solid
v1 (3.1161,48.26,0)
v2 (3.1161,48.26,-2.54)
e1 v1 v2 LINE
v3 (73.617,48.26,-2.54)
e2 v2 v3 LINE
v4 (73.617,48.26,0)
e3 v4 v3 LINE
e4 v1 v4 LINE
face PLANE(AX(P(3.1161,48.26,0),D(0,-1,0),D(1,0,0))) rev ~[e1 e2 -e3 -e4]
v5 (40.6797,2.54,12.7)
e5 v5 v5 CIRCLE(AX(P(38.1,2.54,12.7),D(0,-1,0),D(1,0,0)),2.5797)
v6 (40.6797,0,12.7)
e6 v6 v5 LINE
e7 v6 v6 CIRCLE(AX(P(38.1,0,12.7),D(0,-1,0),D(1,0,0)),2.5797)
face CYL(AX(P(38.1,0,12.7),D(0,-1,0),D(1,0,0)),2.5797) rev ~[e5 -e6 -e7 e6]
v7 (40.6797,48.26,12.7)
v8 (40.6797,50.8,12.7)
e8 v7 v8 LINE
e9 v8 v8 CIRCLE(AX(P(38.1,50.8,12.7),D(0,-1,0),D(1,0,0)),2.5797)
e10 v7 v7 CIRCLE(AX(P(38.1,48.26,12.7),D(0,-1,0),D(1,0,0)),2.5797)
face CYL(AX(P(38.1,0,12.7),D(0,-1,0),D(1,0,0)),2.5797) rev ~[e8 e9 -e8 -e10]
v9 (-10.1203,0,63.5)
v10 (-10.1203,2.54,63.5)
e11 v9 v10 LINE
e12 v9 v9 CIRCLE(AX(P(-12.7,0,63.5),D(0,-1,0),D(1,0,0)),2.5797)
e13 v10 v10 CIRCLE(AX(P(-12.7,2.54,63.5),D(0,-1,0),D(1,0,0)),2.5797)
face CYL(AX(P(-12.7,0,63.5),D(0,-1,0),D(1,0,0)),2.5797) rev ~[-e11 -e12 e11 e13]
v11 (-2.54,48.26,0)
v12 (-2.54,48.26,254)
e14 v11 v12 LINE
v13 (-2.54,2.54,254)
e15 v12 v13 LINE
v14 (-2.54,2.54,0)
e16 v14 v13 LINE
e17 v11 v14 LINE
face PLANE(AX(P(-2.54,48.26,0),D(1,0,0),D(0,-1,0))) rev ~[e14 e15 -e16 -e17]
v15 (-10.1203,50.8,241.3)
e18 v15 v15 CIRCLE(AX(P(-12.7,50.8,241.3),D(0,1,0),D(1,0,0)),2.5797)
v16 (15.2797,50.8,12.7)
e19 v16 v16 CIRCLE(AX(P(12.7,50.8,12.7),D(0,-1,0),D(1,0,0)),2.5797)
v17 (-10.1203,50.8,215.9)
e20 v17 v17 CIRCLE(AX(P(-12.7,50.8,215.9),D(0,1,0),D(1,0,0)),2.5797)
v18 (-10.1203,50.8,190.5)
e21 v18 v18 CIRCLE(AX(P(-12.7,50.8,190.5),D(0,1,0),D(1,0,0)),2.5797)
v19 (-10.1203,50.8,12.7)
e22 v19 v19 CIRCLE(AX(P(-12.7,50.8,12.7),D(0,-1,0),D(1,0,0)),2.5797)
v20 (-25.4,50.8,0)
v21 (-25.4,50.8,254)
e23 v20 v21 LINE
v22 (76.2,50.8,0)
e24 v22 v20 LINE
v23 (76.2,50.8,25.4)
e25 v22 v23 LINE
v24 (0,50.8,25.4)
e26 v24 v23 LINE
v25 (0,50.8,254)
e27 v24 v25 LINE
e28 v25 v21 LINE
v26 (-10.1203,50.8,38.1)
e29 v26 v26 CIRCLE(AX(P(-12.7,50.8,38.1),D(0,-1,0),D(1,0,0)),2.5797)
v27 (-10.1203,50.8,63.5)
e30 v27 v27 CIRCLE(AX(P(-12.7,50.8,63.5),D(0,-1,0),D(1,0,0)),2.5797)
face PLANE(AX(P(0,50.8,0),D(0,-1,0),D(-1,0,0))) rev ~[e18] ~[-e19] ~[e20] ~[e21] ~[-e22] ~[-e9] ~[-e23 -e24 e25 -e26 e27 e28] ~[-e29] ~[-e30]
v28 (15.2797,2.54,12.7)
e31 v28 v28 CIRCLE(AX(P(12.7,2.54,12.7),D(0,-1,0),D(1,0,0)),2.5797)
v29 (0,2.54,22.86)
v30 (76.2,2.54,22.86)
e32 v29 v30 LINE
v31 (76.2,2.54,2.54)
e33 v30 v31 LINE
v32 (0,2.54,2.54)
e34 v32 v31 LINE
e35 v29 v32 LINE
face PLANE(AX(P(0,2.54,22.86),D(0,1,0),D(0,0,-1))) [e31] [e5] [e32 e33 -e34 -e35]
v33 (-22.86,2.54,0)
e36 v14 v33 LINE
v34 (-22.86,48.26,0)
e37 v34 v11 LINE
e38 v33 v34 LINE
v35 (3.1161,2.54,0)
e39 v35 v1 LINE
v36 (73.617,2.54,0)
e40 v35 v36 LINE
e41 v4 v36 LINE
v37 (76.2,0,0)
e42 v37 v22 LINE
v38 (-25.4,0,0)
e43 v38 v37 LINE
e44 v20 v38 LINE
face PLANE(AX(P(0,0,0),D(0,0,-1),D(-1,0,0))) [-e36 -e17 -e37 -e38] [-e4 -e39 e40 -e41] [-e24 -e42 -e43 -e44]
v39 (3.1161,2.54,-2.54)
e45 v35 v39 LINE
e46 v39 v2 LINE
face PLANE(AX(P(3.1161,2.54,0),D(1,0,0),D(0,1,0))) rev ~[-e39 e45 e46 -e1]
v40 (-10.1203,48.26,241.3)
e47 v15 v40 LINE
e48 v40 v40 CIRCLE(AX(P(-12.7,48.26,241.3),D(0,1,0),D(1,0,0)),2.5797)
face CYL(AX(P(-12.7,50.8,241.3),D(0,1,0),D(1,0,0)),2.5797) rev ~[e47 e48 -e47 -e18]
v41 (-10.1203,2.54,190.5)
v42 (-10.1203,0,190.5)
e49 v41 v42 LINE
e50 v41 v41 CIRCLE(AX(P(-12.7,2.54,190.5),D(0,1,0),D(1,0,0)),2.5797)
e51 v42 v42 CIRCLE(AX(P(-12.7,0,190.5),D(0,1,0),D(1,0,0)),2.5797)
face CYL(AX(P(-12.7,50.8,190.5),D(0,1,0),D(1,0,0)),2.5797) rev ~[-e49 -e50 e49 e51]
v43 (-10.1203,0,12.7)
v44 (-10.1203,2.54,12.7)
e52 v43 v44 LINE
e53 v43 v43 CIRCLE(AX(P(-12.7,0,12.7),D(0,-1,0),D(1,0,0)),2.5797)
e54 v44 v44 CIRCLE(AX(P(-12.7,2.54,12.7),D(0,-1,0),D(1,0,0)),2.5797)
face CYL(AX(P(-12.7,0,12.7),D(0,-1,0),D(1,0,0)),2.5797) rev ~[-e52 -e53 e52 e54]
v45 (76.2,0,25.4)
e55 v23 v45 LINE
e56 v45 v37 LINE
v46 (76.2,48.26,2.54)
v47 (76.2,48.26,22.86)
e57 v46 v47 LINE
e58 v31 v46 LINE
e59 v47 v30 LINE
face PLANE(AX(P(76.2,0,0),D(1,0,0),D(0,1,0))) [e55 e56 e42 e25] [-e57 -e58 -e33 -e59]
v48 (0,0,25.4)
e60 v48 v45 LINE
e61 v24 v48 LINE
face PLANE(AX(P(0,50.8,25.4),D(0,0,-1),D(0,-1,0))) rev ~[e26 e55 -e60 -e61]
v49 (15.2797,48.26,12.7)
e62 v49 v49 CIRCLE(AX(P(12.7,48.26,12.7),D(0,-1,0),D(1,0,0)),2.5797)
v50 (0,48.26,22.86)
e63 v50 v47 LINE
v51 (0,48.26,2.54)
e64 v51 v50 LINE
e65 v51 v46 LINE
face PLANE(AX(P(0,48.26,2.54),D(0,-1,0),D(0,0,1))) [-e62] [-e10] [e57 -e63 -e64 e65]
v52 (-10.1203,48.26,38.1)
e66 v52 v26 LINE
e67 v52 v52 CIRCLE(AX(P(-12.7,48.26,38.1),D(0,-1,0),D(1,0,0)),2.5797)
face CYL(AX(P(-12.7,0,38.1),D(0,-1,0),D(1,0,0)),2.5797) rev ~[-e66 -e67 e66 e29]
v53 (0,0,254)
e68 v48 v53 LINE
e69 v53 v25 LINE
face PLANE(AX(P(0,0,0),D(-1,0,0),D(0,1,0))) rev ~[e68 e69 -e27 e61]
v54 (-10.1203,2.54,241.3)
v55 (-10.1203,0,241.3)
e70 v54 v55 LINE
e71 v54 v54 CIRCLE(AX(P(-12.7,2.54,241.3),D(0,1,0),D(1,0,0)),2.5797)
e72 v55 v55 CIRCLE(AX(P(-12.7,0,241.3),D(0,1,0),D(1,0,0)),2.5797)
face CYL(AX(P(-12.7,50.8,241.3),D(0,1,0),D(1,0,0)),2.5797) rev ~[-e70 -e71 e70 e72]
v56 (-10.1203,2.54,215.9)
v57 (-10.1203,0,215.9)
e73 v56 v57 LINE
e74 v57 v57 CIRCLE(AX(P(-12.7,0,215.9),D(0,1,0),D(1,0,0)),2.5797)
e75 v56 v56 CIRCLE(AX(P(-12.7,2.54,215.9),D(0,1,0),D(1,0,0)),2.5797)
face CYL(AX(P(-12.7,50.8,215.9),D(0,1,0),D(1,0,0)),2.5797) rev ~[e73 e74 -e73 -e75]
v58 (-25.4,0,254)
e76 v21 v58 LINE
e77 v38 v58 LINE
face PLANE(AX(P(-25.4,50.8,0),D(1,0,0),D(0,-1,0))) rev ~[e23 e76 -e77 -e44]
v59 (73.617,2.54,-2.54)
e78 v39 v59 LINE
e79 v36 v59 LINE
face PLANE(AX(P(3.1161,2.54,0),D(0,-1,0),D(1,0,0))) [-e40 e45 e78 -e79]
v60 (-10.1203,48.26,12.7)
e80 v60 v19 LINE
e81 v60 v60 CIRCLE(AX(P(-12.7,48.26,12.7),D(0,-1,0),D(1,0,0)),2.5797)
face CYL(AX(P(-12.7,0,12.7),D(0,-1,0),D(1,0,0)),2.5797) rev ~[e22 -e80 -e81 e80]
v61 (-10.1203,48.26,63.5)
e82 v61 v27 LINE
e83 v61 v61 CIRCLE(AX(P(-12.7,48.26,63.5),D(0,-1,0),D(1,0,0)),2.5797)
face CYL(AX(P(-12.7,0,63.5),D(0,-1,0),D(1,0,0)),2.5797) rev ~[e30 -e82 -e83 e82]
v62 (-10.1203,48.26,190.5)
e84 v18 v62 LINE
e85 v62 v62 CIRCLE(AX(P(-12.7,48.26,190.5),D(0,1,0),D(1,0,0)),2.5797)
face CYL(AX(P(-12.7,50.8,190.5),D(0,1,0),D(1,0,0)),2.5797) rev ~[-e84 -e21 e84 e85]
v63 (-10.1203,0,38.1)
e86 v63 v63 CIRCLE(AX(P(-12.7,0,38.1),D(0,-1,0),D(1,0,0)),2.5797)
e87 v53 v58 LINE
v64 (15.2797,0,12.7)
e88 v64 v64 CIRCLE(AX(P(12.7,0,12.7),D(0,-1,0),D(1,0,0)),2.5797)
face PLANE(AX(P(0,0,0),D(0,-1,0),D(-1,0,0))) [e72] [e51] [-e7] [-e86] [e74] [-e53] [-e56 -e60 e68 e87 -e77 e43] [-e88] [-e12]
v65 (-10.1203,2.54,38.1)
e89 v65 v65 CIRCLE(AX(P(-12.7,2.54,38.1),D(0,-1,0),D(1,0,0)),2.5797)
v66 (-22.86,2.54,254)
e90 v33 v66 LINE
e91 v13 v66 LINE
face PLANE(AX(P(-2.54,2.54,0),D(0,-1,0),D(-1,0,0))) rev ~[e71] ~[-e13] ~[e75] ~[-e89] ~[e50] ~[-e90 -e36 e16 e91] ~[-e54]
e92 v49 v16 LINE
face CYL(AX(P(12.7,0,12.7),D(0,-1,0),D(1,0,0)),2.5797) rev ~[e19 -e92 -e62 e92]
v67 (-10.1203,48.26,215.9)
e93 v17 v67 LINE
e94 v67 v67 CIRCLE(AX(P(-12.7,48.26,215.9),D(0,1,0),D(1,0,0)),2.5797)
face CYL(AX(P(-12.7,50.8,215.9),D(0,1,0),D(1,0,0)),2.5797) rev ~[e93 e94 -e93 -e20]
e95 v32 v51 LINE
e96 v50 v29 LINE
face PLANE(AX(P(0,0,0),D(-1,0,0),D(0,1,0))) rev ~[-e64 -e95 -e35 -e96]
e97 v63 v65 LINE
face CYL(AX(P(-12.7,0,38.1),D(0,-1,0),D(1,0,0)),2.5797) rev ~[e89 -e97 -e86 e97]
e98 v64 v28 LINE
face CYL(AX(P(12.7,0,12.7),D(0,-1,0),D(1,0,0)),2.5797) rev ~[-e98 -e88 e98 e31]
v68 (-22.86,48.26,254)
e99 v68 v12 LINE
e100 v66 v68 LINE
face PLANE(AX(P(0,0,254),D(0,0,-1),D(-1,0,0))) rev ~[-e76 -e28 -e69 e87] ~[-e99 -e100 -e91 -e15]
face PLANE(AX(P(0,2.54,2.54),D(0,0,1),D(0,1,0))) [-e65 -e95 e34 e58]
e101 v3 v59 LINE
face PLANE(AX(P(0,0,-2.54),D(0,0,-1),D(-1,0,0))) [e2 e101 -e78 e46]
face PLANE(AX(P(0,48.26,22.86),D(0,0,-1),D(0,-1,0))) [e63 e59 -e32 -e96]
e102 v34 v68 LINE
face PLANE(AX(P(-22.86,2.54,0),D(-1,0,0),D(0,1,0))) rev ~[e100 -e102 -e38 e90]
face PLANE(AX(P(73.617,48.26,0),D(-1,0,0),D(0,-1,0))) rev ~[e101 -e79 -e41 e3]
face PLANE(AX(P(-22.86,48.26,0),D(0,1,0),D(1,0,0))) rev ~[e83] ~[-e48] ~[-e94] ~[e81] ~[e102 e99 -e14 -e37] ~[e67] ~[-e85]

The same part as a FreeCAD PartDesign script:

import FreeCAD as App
import Part
import Sketcher

V = App.Vector
Q = App.Units.Quantity


def add_polygon(sketch, points):
    """Adds a closed chain of lines whose ends are joined by coincident constraints."""
    first, n = sketch.GeometryCount, len(points)
    for a, b in zip(points, points[1:] + points[:1]):
        sketch.addGeometry(Part.LineSegment(App.Vector(*a, 0), App.Vector(*b, 0)), False)
    for i in range(n):
        sketch.addConstraint(Sketcher.Constraint("Coincident", first + i, 2, first + (i + 1) % n, 1))

doc = App.newDocument("Part")
body = doc.addObject("PartDesign::Body", "Body")

# Sketch on YZ plane
sketch1 = body.newObject("Sketcher::SketchObject", "Sketch")
sketch1.AttachmentSupport = (doc.getObject("YZ_Plane"), [""])
sketch1.MapMode = "FlatFace"
add_polygon(sketch1, [(0, 25.4), (0, 0), (50.8, 0), (50.8, 25.4)])  # lines 0-3
add_polygon(sketch1, [(2.54, 22.86), (48.26, 22.86), (48.26, 2.54), (2.54, 2.54)])  # lines 4-7
sketch1.addConstraint([
    Sketcher.Constraint("Vertical", 0),
    Sketcher.Constraint("Horizontal", 1),
    Sketcher.Constraint("Vertical", 2),
    Sketcher.Constraint("Horizontal", 3),
    Sketcher.Constraint("Horizontal", 4),
    Sketcher.Constraint("Vertical", 5),
    Sketcher.Constraint("Horizontal", 6),
    Sketcher.Constraint("Vertical", 7),
    Sketcher.Constraint("Coincident", 0, 2, -1, 1),
    Sketcher.Constraint("DistanceX", 1, 1, 1, 2, Q("2 in")),
    Sketcher.Constraint("DistanceY", 0, 2, 0, 1, Q("1 in")),
    Sketcher.Constraint("DistanceY", -1, 1, 5, 2, Q("0.1 in")),
    Sketcher.Constraint("DistanceX", -1, 1, 6, 2, Q("0.1 in")),
    Sketcher.Constraint("DistanceX", 4, 2, 2, 2, Q("0.1 in")),
    Sketcher.Constraint("DistanceY", 4, 2, 2, 2, Q("0.1 in")),
])
pad1 = body.newObject("PartDesign::Pad", "Pad")
pad1.Profile = sketch1
pad1.Length = Q("3 in")

# Sketch on XY plane
sketch2 = body.newObject("Sketcher::SketchObject", "Sketch001")
sketch2.AttachmentSupport = (doc.getObject("XY_Plane"), [""])
sketch2.MapMode = "FlatFace"
add_polygon(sketch2, [(73.617, 2.54), (3.1161, 2.54), (3.1161, 48.26), (73.617, 48.26)])  # lines 0-3
sketch2.addConstraint([
    Sketcher.Constraint("Horizontal", 0),
    Sketcher.Constraint("Vertical", 1),
    Sketcher.Constraint("Horizontal", 2),
    Sketcher.Constraint("Vertical", 3),
    Sketcher.Constraint("DistanceY", 1, 1, 1, 2, Q("1.8 in")),
    Sketcher.Constraint("DistanceY", -1, 1, 0, 2, Q("0.1 in")),
    Sketcher.Constraint("DistanceX", 0, 2, 0, 1, 70.501),
    Sketcher.Constraint("DistanceX", -1, 1, 2, 2, Q("2.8983 in")),
])
pad2 = body.newObject("PartDesign::Pad", "Pad001")
pad2.Profile = sketch2
pad2.Length = Q("0.1 in")
pad2.Reversed = True

# Sketch on XY plane
sketch3 = body.newObject("Sketcher::SketchObject", "Sketch002")
sketch3.AttachmentSupport = (doc.getObject("XY_Plane"), [""])
sketch3.MapMode = "FlatFace"
add_polygon(sketch3, [(0, 50.8), (0, 0), (-25.4, 0), (-25.4, 50.8)])  # lines 0-3
add_polygon(sketch3, [(-2.54, 48.26), (-22.86, 48.26), (-22.86, 2.54), (-2.54, 2.54)])  # lines 4-7
sketch3.addConstraint([
    Sketcher.Constraint("Vertical", 0),
    Sketcher.Constraint("Horizontal", 1),
    Sketcher.Constraint("Vertical", 2),
    Sketcher.Constraint("Horizontal", 3),
    Sketcher.Constraint("Horizontal", 4),
    Sketcher.Constraint("Vertical", 5),
    Sketcher.Constraint("Horizontal", 6),
    Sketcher.Constraint("Vertical", 7),
    Sketcher.Constraint("Coincident", 0, 2, -1, 1),
    Sketcher.Constraint("DistanceX", 1, 2, 1, 1, Q("1 in")),
    Sketcher.Constraint("DistanceY", 0, 2, 0, 1, Q("2 in")),
    Sketcher.Constraint("DistanceY", -1, 1, 5, 2, Q("0.1 in")),
    Sketcher.Constraint("DistanceX", 6, 2, -1, 1, Q("0.1 in")),
    Sketcher.Constraint("DistanceX", 2, 2, 4, 2, Q("0.1 in")),
    Sketcher.Constraint("DistanceY", 4, 2, 2, 2, Q("0.1 in")),
])
pad3 = body.newObject("PartDesign::Pad", "Pad002")
pad3.Profile = sketch3
pad3.Length = Q("10 in")

# Sketch on XZ plane
sketch4 = body.newObject("Sketcher::SketchObject", "Sketch003")
sketch4.AttachmentSupport = (doc.getObject("XZ_Plane"), [""])
sketch4.MapMode = "FlatFace"
sketch4.addGeometry([
    Part.Circle(V(38.1, 12.7, 0), V(0, 0, 1), 2.5797),  # 0
    Part.Circle(V(12.7, 12.7, 0), V(0, 0, 1), 2.5797),  # 1
    Part.Circle(V(-12.7, 12.7, 0), V(0, 0, 1), 2.5797),  # 2
    Part.Circle(V(-12.7, 38.1, 0), V(0, 0, 1), 2.5797),  # 3
    Part.Circle(V(-12.7, 63.5, 0), V(0, 0, 1), 2.5797),  # 4
], False)
sketch4.addConstraint([
    Sketcher.Constraint("Equal", 0, 1),
    Sketcher.Constraint("Equal", 1, 2),
    Sketcher.Constraint("Equal", 2, 3),
    Sketcher.Constraint("Equal", 3, 4),
    Sketcher.Constraint("Symmetric", 1, 3, 2, 3, -2),
    Sketcher.Constraint("Horizontal", 0, 3, 1, 3),
    Sketcher.Constraint("Vertical", 2, 3, 3, 3),
    Sketcher.Constraint("Vertical", 3, 3, 4, 3),
    Sketcher.Constraint("Diameter", 0, Q("0.203126 in")),
    Sketcher.Constraint("DistanceX", 1, 3, 0, 3, Q("1 in")),
    Sketcher.Constraint("DistanceX", 2, 3, 1, 3, Q("1 in")),
    Sketcher.Constraint("DistanceY", 2, 3, 3, 3, Q("1 in")),
    Sketcher.Constraint("DistanceY", 3, 3, 4, 3, Q("1 in")),
    Sketcher.Constraint("DistanceY", -1, 1, 0, 3, Q("0.5 in")),
])
pocket1 = body.newObject("PartDesign::Pocket", "Pocket")
pocket1.Profile = sketch4
pocket1.Length = Q("3 in")

# Sketch on XZ plane
sketch5 = body.newObject("Sketcher::SketchObject", "Sketch004")
sketch5.AttachmentSupport = (doc.getObject("XZ_Plane"), [""])
sketch5.MapMode = "FlatFace"
sketch5.AttachmentOffset = App.Placement(V(0, 0, -2 * 25.4), App.Rotation())
sketch5.addGeometry([
    Part.Circle(V(-12.7, 241.3, 0), V(0, 0, 1), 2.5797),
    Part.Circle(V(-12.7, 215.9, 0), V(0, 0, 1), 2.5797),
    Part.Circle(V(-12.7, 190.5, 0), V(0, 0, 1), 2.5797),
], False)
sketch5.addConstraint([
    Sketcher.Constraint("Equal", 0, 1),
    Sketcher.Constraint("Equal", 1, 2),
    Sketcher.Constraint("Vertical", 0, 3, 1, 3),
    Sketcher.Constraint("Vertical", 1, 3, 2, 3),
    Sketcher.Constraint("Diameter", 0, Q("0.203126 in")),
    Sketcher.Constraint("DistanceY", 1, 3, 0, 3, Q("1 in")),
    Sketcher.Constraint("DistanceY", 2, 3, 1, 3, Q("1 in")),
    Sketcher.Constraint("DistanceX", 0, 3, -1, 1, Q("0.5 in")),
    Sketcher.Constraint("DistanceY", -1, 1, 0, 3, Q("9.5 in")),
])
pocket2 = body.newObject("PartDesign::Pocket", "Pocket001")
pocket2.Profile = sketch5
pocket2.Length = Q("3 in")
pocket2.Reversed = True

doc.recompute()
